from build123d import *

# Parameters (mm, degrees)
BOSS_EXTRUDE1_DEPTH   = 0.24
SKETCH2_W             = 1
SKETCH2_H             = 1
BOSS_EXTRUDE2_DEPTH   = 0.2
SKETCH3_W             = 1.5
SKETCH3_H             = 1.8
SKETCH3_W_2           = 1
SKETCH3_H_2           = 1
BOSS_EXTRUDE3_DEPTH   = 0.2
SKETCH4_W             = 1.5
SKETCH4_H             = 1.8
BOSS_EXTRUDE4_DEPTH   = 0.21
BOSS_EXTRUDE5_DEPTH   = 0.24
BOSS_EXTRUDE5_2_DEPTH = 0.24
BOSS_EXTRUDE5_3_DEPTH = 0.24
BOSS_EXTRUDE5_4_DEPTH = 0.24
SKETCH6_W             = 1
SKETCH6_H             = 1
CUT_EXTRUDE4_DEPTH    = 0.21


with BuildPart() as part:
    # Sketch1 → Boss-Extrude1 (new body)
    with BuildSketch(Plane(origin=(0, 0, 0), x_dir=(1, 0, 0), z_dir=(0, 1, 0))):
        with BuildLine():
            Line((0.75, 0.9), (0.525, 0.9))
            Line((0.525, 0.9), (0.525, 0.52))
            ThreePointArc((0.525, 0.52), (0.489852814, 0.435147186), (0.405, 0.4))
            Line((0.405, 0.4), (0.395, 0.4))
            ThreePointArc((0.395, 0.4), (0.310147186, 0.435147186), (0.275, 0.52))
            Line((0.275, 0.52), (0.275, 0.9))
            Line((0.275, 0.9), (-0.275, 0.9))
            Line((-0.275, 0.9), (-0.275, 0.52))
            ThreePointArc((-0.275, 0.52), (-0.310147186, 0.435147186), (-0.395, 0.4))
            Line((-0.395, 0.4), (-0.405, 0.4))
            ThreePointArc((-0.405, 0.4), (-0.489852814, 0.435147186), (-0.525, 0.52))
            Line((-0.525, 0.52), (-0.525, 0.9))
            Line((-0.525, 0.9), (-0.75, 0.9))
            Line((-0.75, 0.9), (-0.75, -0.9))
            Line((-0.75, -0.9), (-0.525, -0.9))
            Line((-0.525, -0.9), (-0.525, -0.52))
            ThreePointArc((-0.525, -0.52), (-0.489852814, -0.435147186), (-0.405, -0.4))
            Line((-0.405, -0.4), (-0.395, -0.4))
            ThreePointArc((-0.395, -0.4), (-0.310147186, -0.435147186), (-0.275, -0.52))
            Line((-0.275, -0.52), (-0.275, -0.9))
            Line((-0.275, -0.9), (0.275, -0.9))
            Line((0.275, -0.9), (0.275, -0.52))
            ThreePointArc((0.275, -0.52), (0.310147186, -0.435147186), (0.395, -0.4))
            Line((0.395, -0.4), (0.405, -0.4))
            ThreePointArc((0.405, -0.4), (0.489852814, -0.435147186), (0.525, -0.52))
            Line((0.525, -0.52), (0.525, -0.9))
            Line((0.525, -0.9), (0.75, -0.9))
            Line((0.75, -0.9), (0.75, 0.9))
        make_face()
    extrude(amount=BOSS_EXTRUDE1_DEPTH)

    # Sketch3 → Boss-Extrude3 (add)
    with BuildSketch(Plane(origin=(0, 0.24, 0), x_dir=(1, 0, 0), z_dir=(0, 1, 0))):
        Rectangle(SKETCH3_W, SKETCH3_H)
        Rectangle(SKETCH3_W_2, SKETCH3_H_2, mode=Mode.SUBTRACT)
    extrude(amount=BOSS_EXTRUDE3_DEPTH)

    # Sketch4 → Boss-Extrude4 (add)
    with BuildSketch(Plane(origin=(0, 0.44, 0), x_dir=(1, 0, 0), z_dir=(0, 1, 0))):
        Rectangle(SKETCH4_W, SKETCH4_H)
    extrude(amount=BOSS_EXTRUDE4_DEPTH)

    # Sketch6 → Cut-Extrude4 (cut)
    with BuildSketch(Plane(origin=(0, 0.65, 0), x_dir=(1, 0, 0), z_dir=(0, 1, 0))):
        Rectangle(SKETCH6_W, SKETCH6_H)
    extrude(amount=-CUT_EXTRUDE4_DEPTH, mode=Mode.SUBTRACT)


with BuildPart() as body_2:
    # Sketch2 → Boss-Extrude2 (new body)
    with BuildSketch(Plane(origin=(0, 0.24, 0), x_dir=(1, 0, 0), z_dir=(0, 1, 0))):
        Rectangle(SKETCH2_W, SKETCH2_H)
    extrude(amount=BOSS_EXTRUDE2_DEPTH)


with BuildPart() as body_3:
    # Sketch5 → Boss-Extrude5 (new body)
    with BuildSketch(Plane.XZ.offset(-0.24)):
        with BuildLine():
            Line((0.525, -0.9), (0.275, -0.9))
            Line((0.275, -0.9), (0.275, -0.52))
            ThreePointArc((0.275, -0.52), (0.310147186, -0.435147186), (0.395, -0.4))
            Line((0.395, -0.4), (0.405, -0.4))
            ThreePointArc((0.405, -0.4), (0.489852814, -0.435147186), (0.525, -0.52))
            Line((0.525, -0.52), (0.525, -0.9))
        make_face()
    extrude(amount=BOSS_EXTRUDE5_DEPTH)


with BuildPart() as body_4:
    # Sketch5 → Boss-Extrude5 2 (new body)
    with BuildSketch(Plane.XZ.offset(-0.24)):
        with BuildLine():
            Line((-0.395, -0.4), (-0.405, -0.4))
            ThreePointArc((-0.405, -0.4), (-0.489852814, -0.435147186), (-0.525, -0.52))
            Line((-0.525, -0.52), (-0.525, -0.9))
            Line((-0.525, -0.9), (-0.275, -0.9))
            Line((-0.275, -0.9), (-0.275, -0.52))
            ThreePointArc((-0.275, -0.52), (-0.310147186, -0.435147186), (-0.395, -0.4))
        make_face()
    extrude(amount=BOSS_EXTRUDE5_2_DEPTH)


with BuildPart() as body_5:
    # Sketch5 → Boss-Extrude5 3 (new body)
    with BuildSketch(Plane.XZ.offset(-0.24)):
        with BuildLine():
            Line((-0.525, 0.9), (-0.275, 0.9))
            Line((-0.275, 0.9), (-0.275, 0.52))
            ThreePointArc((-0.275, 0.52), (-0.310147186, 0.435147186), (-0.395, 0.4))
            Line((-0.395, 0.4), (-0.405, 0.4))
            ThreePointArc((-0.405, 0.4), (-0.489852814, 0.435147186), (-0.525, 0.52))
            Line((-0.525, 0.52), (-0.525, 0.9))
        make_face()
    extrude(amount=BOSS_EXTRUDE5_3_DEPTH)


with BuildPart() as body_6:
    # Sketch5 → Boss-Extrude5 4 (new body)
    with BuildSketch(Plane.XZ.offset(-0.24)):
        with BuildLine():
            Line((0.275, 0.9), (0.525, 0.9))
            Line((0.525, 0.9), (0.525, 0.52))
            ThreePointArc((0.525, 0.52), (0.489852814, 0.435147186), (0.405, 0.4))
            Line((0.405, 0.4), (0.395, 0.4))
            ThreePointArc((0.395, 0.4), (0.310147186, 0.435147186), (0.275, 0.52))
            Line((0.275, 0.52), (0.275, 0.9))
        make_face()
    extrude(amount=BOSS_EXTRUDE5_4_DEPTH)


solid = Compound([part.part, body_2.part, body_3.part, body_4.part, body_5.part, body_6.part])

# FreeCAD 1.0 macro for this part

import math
import FreeCAD as App
import Part
import Sketcher
Q = App.Units.Quantity

doc = App.newDocument("Part")
body = doc.addObject("PartDesign::Body", "Body")

# Sketch on XZ plane
sketch1 = body.newObject("Sketcher::SketchObject", "Sketch")
sketch1.AttachmentSupport = (doc.getObject("XZ_Plane"), [""])
sketch1.MapMode = "FlatFace"
sketch1.addGeometry([
    Part.LineSegment(App.Vector(0.75, -0.9, 0), App.Vector(0.525, -0.9, 0)),  # 0
    Part.LineSegment(App.Vector(0.525, -0.9, 0), App.Vector(0.525, -0.52, 0)),  # 1
    Part.ArcOfCircle(Part.Circle(App.Vector(0.405, -0.52, 0), App.Vector(0, 0, 1), 0.12), math.radians(0), math.radians(90)),  # 2
    Part.LineSegment(App.Vector(0.405, -0.4, 0), App.Vector(0.395, -0.4, 0)),  # 3
    Part.ArcOfCircle(Part.Circle(App.Vector(0.395, -0.52, 0), App.Vector(0, 0, 1), 0.12), math.radians(90), math.radians(180)),  # 4
    Part.LineSegment(App.Vector(0.275, -0.52, 0), App.Vector(0.275, -0.9, 0)),  # 5
    Part.LineSegment(App.Vector(0.275, -0.9, 0), App.Vector(-0.275, -0.9, 0)),  # 6
    Part.LineSegment(App.Vector(-0.275, -0.9, 0), App.Vector(-0.275, -0.52, 0)),  # 7
    Part.ArcOfCircle(Part.Circle(App.Vector(-0.395, -0.52, 0), App.Vector(0, 0, 1), 0.12), math.radians(0), math.radians(90)),  # 8
    Part.LineSegment(App.Vector(-0.395, -0.4, 0), App.Vector(-0.405, -0.4, 0)),  # 9
    Part.ArcOfCircle(Part.Circle(App.Vector(-0.405, -0.52, 0), App.Vector(0, 0, 1), 0.12), math.radians(90), math.radians(180)),  # 10
    Part.LineSegment(App.Vector(-0.525, -0.52, 0), App.Vector(-0.525, -0.9, 0)),  # 11
    Part.LineSegment(App.Vector(-0.525, -0.9, 0), App.Vector(-0.75, -0.9, 0)),  # 12
    Part.LineSegment(App.Vector(-0.75, -0.9, 0), App.Vector(-0.75, 0.9, 0)),  # 13
    Part.LineSegment(App.Vector(-0.75, 0.9, 0), App.Vector(-0.525, 0.9, 0)),  # 14
    Part.LineSegment(App.Vector(-0.525, 0.9, 0), App.Vector(-0.525, 0.52, 0)),  # 15
    Part.ArcOfCircle(Part.Circle(App.Vector(-0.405, 0.52, 0), App.Vector(0, 0, 1), 0.12), math.radians(180), math.radians(270)),  # 16
    Part.LineSegment(App.Vector(-0.405, 0.4, 0), App.Vector(-0.395, 0.4, 0)),  # 17
    Part.ArcOfCircle(Part.Circle(App.Vector(-0.395, 0.52, 0), App.Vector(0, 0, 1), 0.12), math.radians(-90), math.radians(0)),  # 18
    Part.LineSegment(App.Vector(-0.275, 0.52, 0), App.Vector(-0.275, 0.9, 0)),  # 19
    Part.LineSegment(App.Vector(-0.275, 0.9, 0), App.Vector(0.275, 0.9, 0)),  # 20
    Part.LineSegment(App.Vector(0.275, 0.9, 0), App.Vector(0.275, 0.52, 0)),  # 21
    Part.ArcOfCircle(Part.Circle(App.Vector(0.395, 0.52, 0), App.Vector(0, 0, 1), 0.12), math.radians(180), math.radians(270)),  # 22
    Part.LineSegment(App.Vector(0.395, 0.4, 0), App.Vector(0.405, 0.4, 0)),  # 23
    Part.ArcOfCircle(Part.Circle(App.Vector(0.405, 0.52, 0), App.Vector(0, 0, 1), 0.12), math.radians(-90), math.radians(0)),  # 24
    Part.LineSegment(App.Vector(0.525, 0.52, 0), App.Vector(0.525, 0.9, 0)),  # 25
    Part.LineSegment(App.Vector(0.525, 0.9, 0), App.Vector(0.75, 0.9, 0)),  # 26
    Part.LineSegment(App.Vector(0.75, 0.9, 0), App.Vector(0.75, -0.9, 0)),  # 27
], False)
sketch1.addConstraint([
    Sketcher.Constraint("Coincident", 0, 2, 1, 1),
    Sketcher.Constraint("Tangent", 1, 2, 2, 1),
    Sketcher.Constraint("Tangent", 2, 2, 3, 1),
    Sketcher.Constraint("Tangent", 3, 2, 4, 1),
    Sketcher.Constraint("Tangent", 4, 2, 5, 1),
    Sketcher.Constraint("Coincident", 5, 2, 6, 1),
    Sketcher.Constraint("Coincident", 6, 2, 7, 1),
    Sketcher.Constraint("Tangent", 7, 2, 8, 1),
    Sketcher.Constraint("Tangent", 8, 2, 9, 1),
    Sketcher.Constraint("Tangent", 9, 2, 10, 1),
    Sketcher.Constraint("Tangent", 10, 2, 11, 1),
    Sketcher.Constraint("Coincident", 11, 2, 12, 1),
    Sketcher.Constraint("Coincident", 12, 2, 13, 1),
    Sketcher.Constraint("Coincident", 13, 2, 14, 1),
    Sketcher.Constraint("Coincident", 14, 2, 15, 1),
    Sketcher.Constraint("Tangent", 15, 2, 16, 1),
    Sketcher.Constraint("Tangent", 16, 2, 17, 1),
    Sketcher.Constraint("Tangent", 17, 2, 18, 1),
    Sketcher.Constraint("Tangent", 18, 2, 19, 1),
    Sketcher.Constraint("Coincident", 19, 2, 20, 1),
    Sketcher.Constraint("Coincident", 20, 2, 21, 1),
    Sketcher.Constraint("Tangent", 21, 2, 22, 1),
    Sketcher.Constraint("Tangent", 22, 2, 23, 1),
    Sketcher.Constraint("Tangent", 23, 2, 24, 1),
    Sketcher.Constraint("Tangent", 24, 2, 25, 1),
    Sketcher.Constraint("Coincident", 25, 2, 26, 1),
    Sketcher.Constraint("Coincident", 26, 2, 27, 1),
    Sketcher.Constraint("Coincident", 27, 2, 0, 1),
    Sketcher.Constraint("Horizontal", 0),
    Sketcher.Constraint("Vertical", 1),
    Sketcher.Constraint("Horizontal", 3),
    Sketcher.Constraint("Vertical", 5),
    Sketcher.Constraint("Horizontal", 6),
    Sketcher.Constraint("Vertical", 7),
    Sketcher.Constraint("Horizontal", 9),
    Sketcher.Constraint("Vertical", 11),
    Sketcher.Constraint("Horizontal", 12),
    Sketcher.Constraint("Vertical", 13),
    Sketcher.Constraint("Horizontal", 14),
    Sketcher.Constraint("Vertical", 15),
    Sketcher.Constraint("Horizontal", 17),
    Sketcher.Constraint("Vertical", 19),
    Sketcher.Constraint("Horizontal", 20),
    Sketcher.Constraint("Vertical", 21),
    Sketcher.Constraint("Horizontal", 23),
    Sketcher.Constraint("Vertical", 25),
    Sketcher.Constraint("Horizontal", 26),
    Sketcher.Constraint("Vertical", 27),
    Sketcher.Constraint("Equal", 2, 4),
    Sketcher.Constraint("Equal", 4, 8),
    Sketcher.Constraint("Equal", 8, 10),
    Sketcher.Constraint("Equal", 10, 16),
    Sketcher.Constraint("Equal", 16, 18),
    Sketcher.Constraint("Equal", 18, 22),
    Sketcher.Constraint("Equal", 22, 24),
    Sketcher.Constraint("Symmetric", 2, 3, 16, 3, -1, 1),
    Sketcher.Constraint("Symmetric", 8, 3, 22, 3, -1, 1),
    Sketcher.Constraint("Symmetric", 5, 2, 19, 2, -1, 1),
    Sketcher.Constraint("Symmetric", 11, 2, 25, 2, -1, 1),
    Sketcher.Constraint("Symmetric", 13, 2, 27, 2, -1, 1),
    Sketcher.Constraint("Symmetric", 4, 3, 8, 3, -2),
    Sketcher.Constraint("Symmetric", 0, 2, 11, 2, -2),
    Sketcher.Constraint("Horizontal", 0, 2, 5, 2),
    Sketcher.Constraint("Radius", 2, Q("0.12 mm")),
    Sketcher.Constraint("DistanceY", 13, 1, 13, 2, Q("1.8 mm")),
    Sketcher.Constraint("DistanceX", 3, 2, 3, 1, Q("0.01 mm")),
    Sketcher.Constraint("DistanceX", 6, 2, 6, 1, Q("0.55 mm")),
    Sketcher.Constraint("DistanceY", 1, 1, 1, 2, Q("0.38 mm")),
    Sketcher.Constraint("DistanceX", 0, 2, 0, 1, Q("0.225 mm")),
])
pad1 = body.newObject("PartDesign::Pad", "Pad")
pad1.Profile = sketch1
pad1.Length = 0.24
pad1.Reversed = True

# Sketch on XZ plane
sketch2 = body.newObject("Sketcher::SketchObject", "Sketch001")
sketch2.AttachmentSupport = (doc.getObject("XZ_Plane"), [""])
sketch2.MapMode = "FlatFace"
sketch2.AttachmentOffset = App.Placement(App.Vector(0, 0, -0.24), App.Rotation())
sketch2.addGeometry([
    Part.LineSegment(App.Vector(-0.8, -0.9, 0), App.Vector(-0.8, 0.9, 0)),  # 0
    Part.LineSegment(App.Vector(-0.8, 0.9, 0), App.Vector(0.8, 0.9, 0)),  # 1
    Part.LineSegment(App.Vector(0.8, 0.9, 0), App.Vector(0.8, -0.9, 0)),  # 2
    Part.LineSegment(App.Vector(0.8, -0.9, 0), App.Vector(-0.8, -0.9, 0)),  # 3
    Part.LineSegment(App.Vector(0.5, 0.5, 0), App.Vector(-0.5, 0.5, 0)),  # 4
    Part.LineSegment(App.Vector(-0.5, 0.5, 0), App.Vector(-0.5, -0.5, 0)),  # 5
    Part.LineSegment(App.Vector(-0.5, -0.5, 0), App.Vector(0.5, -0.5, 0)),  # 6
    Part.LineSegment(App.Vector(0.5, -0.5, 0), App.Vector(0.5, 0.5, 0)),  # 7
], False)
sketch2.addConstraint([
    Sketcher.Constraint("Coincident", 0, 2, 1, 1),
    Sketcher.Constraint("Coincident", 1, 2, 2, 1),
    Sketcher.Constraint("Coincident", 2, 2, 3, 1),
    Sketcher.Constraint("Coincident", 3, 2, 0, 1),
    Sketcher.Constraint("Coincident", 4, 2, 5, 1),
    Sketcher.Constraint("Coincident", 5, 2, 6, 1),
    Sketcher.Constraint("Coincident", 6, 2, 7, 1),
    Sketcher.Constraint("Coincident", 7, 2, 4, 1),
    Sketcher.Constraint("Vertical", 0),
    Sketcher.Constraint("Horizontal", 1),
    Sketcher.Constraint("Vertical", 2),
    Sketcher.Constraint("Horizontal", 3),
    Sketcher.Constraint("Horizontal", 4),
    Sketcher.Constraint("Vertical", 5),
    Sketcher.Constraint("Horizontal", 6),
    Sketcher.Constraint("Vertical", 7),
    Sketcher.Constraint("Symmetric", 0, 2, 2, 2, -1, 1),
    Sketcher.Constraint("Symmetric", 4, 2, 6, 2, -1, 1),
    Sketcher.Constraint("Equal", 6, 5),
    Sketcher.Constraint("DistanceX", 4, 2, 4, 1, Q("1 mm")),
    Sketcher.Constraint("DistanceX", 1, 1, 1, 2, Q("1.5 mm")),
    Sketcher.Constraint("DistanceY", 0, 1, 0, 2, Q("1.8 mm")),
])
pad2 = body.newObject("PartDesign::Pad", "Pad001")
pad2.Profile = sketch2
pad2.Length = 0.2
pad2.Reversed = True

# Sketch on XZ plane
sketch3 = body.newObject("Sketcher::SketchObject", "Sketch002")
sketch3.AttachmentSupport = (doc.getObject("XZ_Plane"), [""])
sketch3.MapMode = "FlatFace"
sketch3.AttachmentOffset = App.Placement(App.Vector(0, 0, -0.44), App.Rotation())
sketch3.addGeometry([
    Part.LineSegment(App.Vector(-0.8, -0.9, 0), App.Vector(-0.8, 0.9, 0)),
    Part.LineSegment(App.Vector(-0.8, 0.9, 0), App.Vector(0.8, 0.9, 0)),
    Part.LineSegment(App.Vector(0.8, 0.9, 0), App.Vector(0.8, -0.9, 0)),
    Part.LineSegment(App.Vector(0.8, -0.9, 0), App.Vector(-0.8, -0.9, 0)),
], False)
sketch3.addConstraint([
    Sketcher.Constraint("Coincident", 0, 2, 1, 1),
    Sketcher.Constraint("Coincident", 1, 2, 2, 1),
    Sketcher.Constraint("Coincident", 2, 2, 3, 1),
    Sketcher.Constraint("Coincident", 3, 2, 0, 1),
    Sketcher.Constraint("Vertical", 0),
    Sketcher.Constraint("Horizontal", 1),
    Sketcher.Constraint("Vertical", 2),
    Sketcher.Constraint("Horizontal", 3),
    Sketcher.Constraint("Symmetric", 0, 2, 2, 2, -1, 1),
    Sketcher.Constraint("DistanceX", 1, 1, 1, 2, Q("1.5 mm")),
    Sketcher.Constraint("DistanceY", 0, 1, 0, 2, Q("1.8 mm")),
])
pad3 = body.newObject("PartDesign::Pad", "Pad002")
pad3.Profile = sketch3
pad3.Length = 0.21
pad3.Reversed = True

# Sketch on XZ plane
sketch4 = body.newObject("Sketcher::SketchObject", "Sketch003")
sketch4.AttachmentSupport = (doc.getObject("XZ_Plane"), [""])
sketch4.MapMode = "FlatFace"
sketch4.AttachmentOffset = App.Placement(App.Vector(0, 0, -0.65), App.Rotation())
sketch4.addGeometry([
    Part.LineSegment(App.Vector(-0.5, -0.5, 0), App.Vector(-0.5, 0.5, 0)),
    Part.LineSegment(App.Vector(-0.5, 0.5, 0), App.Vector(0.5, 0.5, 0)),
    Part.LineSegment(App.Vector(0.5, 0.5, 0), App.Vector(0.5, -0.5, 0)),
    Part.LineSegment(App.Vector(0.5, -0.5, 0), App.Vector(-0.5, -0.5, 0)),
], False)
sketch4.addConstraint([
    Sketcher.Constraint("Coincident", 0, 2, 1, 1),
    Sketcher.Constraint("Coincident", 1, 2, 2, 1),
    Sketcher.Constraint("Coincident", 2, 2, 3, 1),
    Sketcher.Constraint("Coincident", 3, 2, 0, 1),
    Sketcher.Constraint("Vertical", 0),
    Sketcher.Constraint("Horizontal", 1),
    Sketcher.Constraint("Vertical", 2),
    Sketcher.Constraint("Horizontal", 3),
    Sketcher.Constraint("Symmetric", 0, 2, 2, 2, -1, 1),
    Sketcher.Constraint("Equal", 3, 0),
    Sketcher.Constraint("DistanceX", 1, 1, 1, 2, Q("1 mm")),
])
pocket1 = body.newObject("PartDesign::Pocket", "Pocket")
pocket1.Profile = sketch4
pocket1.Length = 0.21
pocket1.Reversed = True
body2 = doc.addObject("PartDesign::Body", "Body001")

# Sketch on XZ plane
sketch5 = body2.newObject("Sketcher::SketchObject", "Sketch004")
sketch5.AttachmentSupport = (doc.getObject("XZ_Plane001"), [""])
sketch5.MapMode = "FlatFace"
sketch5.AttachmentOffset = App.Placement(App.Vector(0, 0, -0.24), App.Rotation())
sketch5.addGeometry([
    Part.LineSegment(App.Vector(-0.5, -0.5, 0), App.Vector(-0.5, 0.5, 0)),
    Part.LineSegment(App.Vector(-0.5, 0.5, 0), App.Vector(0.5, 0.5, 0)),
    Part.LineSegment(App.Vector(0.5, 0.5, 0), App.Vector(0.5, -0.5, 0)),
    Part.LineSegment(App.Vector(0.5, -0.5, 0), App.Vector(-0.5, -0.5, 0)),
], False)
sketch5.addConstraint([
    Sketcher.Constraint("Coincident", 0, 2, 1, 1),
    Sketcher.Constraint("Coincident", 1, 2, 2, 1),
    Sketcher.Constraint("Coincident", 2, 2, 3, 1),
    Sketcher.Constraint("Coincident", 3, 2, 0, 1),
    Sketcher.Constraint("Vertical", 0),
    Sketcher.Constraint("Horizontal", 1),
    Sketcher.Constraint("Vertical", 2),
    Sketcher.Constraint("Horizontal", 3),
    Sketcher.Constraint("Symmetric", 0, 2, 2, 2, -1, 1),
    Sketcher.Constraint("Equal", 3, 0),
    Sketcher.Constraint("DistanceX", 1, 1, 1, 2, Q("1 mm")),
])
pad4 = body2.newObject("PartDesign::Pad", "Pad003")
pad4.Profile = sketch5
pad4.Length = 0.2
pad4.Reversed = True
body3 = doc.addObject("PartDesign::Body", "Body002")

# Sketch on XZ plane
sketch6 = body3.newObject("Sketcher::SketchObject", "Sketch005")
sketch6.AttachmentSupport = (doc.getObject("XZ_Plane002"), [""])
sketch6.MapMode = "FlatFace"
sketch6.AttachmentOffset = App.Placement(App.Vector(0, 0, -0.24), App.Rotation())
sketch6.addGeometry([
    Part.LineSegment(App.Vector(0.275, -0.9, 0), App.Vector(0.525, -0.9, 0)),  # 0
    Part.LineSegment(App.Vector(0.525, -0.9, 0), App.Vector(0.525, -0.52, 0)),  # 1
    Part.ArcOfCircle(Part.Circle(App.Vector(0.405, -0.52, 0), App.Vector(0, 0, 1), 0.12), math.radians(0), math.radians(90)),  # 2
    Part.LineSegment(App.Vector(0.405, -0.4, 0), App.Vector(0.395, -0.4, 0)),  # 3
    Part.ArcOfCircle(Part.Circle(App.Vector(0.395, -0.52, 0), App.Vector(0, 0, 1), 0.12), math.radians(90), math.radians(180)),  # 4
    Part.LineSegment(App.Vector(0.275, -0.52, 0), App.Vector(0.275, -0.9, 0)),  # 5
], False)
sketch6.addConstraint([
    Sketcher.Constraint("Coincident", 0, 2, 1, 1),
    Sketcher.Constraint("Tangent", 1, 2, 2, 1),
    Sketcher.Constraint("Tangent", 2, 2, 3, 1),
    Sketcher.Constraint("Tangent", 3, 2, 4, 1),
    Sketcher.Constraint("Tangent", 4, 2, 5, 1),
    Sketcher.Constraint("Coincident", 5, 2, 0, 1),
    Sketcher.Constraint("Horizontal", 0),
    Sketcher.Constraint("Vertical", 1),
    Sketcher.Constraint("Horizontal", 3),
    Sketcher.Constraint("Vertical", 5),
    Sketcher.Constraint("Equal", 2, 4),
    Sketcher.Constraint("Radius", 2, Q("0.12 mm")),
    Sketcher.Constraint("DistanceX", 0, 1, 0, 2, Q("0.25 mm")),
    Sketcher.Constraint("DistanceY", 1, 1, 1, 2, Q("0.38 mm")),
    Sketcher.Constraint("DistanceY", 0, 2, -1, 1, Q("0.9 mm")),
    Sketcher.Constraint("DistanceX", -1, 1, 2, 3, Q("0.405 mm")),
])
pad5 = body3.newObject("PartDesign::Pad", "Pad004")
pad5.Profile = sketch6
pad5.Length = 0.24
body4 = doc.addObject("PartDesign::Body", "Body003")

# Sketch on XZ plane
sketch7 = body4.newObject("Sketcher::SketchObject", "Sketch006")
sketch7.AttachmentSupport = (doc.getObject("XZ_Plane003"), [""])
sketch7.MapMode = "FlatFace"
sketch7.AttachmentOffset = App.Placement(App.Vector(0, 0, -0.24), App.Rotation())
sketch7.addGeometry([
    Part.LineSegment(App.Vector(-0.395, -0.4, 0), App.Vector(-0.405, -0.4, 0)),  # 0
    Part.ArcOfCircle(Part.Circle(App.Vector(-0.405, -0.52, 0), App.Vector(0, 0, 1), 0.12), math.radians(90), math.radians(180)),  # 1
    Part.LineSegment(App.Vector(-0.525, -0.52, 0), App.Vector(-0.525, -0.9, 0)),  # 2
    Part.LineSegment(App.Vector(-0.525, -0.9, 0), App.Vector(-0.275, -0.9, 0)),  # 3
    Part.LineSegment(App.Vector(-0.275, -0.9, 0), App.Vector(-0.275, -0.52, 0)),  # 4
    Part.ArcOfCircle(Part.Circle(App.Vector(-0.395, -0.52, 0), App.Vector(0, 0, 1), 0.12), math.radians(0), math.radians(90)),  # 5
], False)
sketch7.addConstraint([
    Sketcher.Constraint("Tangent", 0, 2, 1, 1),
    Sketcher.Constraint("Tangent", 1, 2, 2, 1),
    Sketcher.Constraint("Coincident", 2, 2, 3, 1),
    Sketcher.Constraint("Coincident", 3, 2, 4, 1),
    Sketcher.Constraint("Tangent", 4, 2, 5, 1),
    Sketcher.Constraint("Tangent", 5, 2, 0, 1),
    Sketcher.Constraint("Horizontal", 0),
    Sketcher.Constraint("Vertical", 2),
    Sketcher.Constraint("Horizontal", 3),
    Sketcher.Constraint("Vertical", 4),
    Sketcher.Constraint("Equal", 1, 5),
    Sketcher.Constraint("Radius", 1, Q("0.12 mm")),
    Sketcher.Constraint("DistanceX", 0, 2, 0, 1, Q("0.01 mm")),
    Sketcher.Constraint("DistanceY", 2, 2, 2, 1, Q("0.38 mm")),
    Sketcher.Constraint("DistanceY", 0, 2, -1, 1, Q("0.4 mm")),
    Sketcher.Constraint("DistanceX", 1, 3, -1, 1, Q("0.405 mm")),
])
pad6 = body4.newObject("PartDesign::Pad", "Pad005")
pad6.Profile = sketch7
pad6.Length = 0.24
body5 = doc.addObject("PartDesign::Body", "Body004")

# Sketch on XZ plane
sketch8 = body5.newObject("Sketcher::SketchObject", "Sketch007")
sketch8.AttachmentSupport = (doc.getObject("XZ_Plane004"), [""])
sketch8.MapMode = "FlatFace"
sketch8.AttachmentOffset = App.Placement(App.Vector(0, 0, -0.24), App.Rotation())
sketch8.addGeometry([
    Part.LineSegment(App.Vector(-0.275, 0.9, 0), App.Vector(-0.525, 0.9, 0)),  # 0
    Part.LineSegment(App.Vector(-0.525, 0.9, 0), App.Vector(-0.525, 0.52, 0)),  # 1
    Part.ArcOfCircle(Part.Circle(App.Vector(-0.405, 0.52, 0), App.Vector(0, 0, 1), 0.12), math.radians(180), math.radians(270)),  # 2
    Part.LineSegment(App.Vector(-0.405, 0.4, 0), App.Vector(-0.395, 0.4, 0)),  # 3
    Part.ArcOfCircle(Part.Circle(App.Vector(-0.395, 0.52, 0), App.Vector(0, 0, 1), 0.12), math.radians(-90), math.radians(0)),  # 4
    Part.LineSegment(App.Vector(-0.275, 0.52, 0), App.Vector(-0.275, 0.9, 0)),  # 5
], False)
sketch8.addConstraint([
    Sketcher.Constraint("Coincident", 0, 2, 1, 1),
    Sketcher.Constraint("Tangent", 1, 2, 2, 1),
    Sketcher.Constraint("Tangent", 2, 2, 3, 1),
    Sketcher.Constraint("Tangent", 3, 2, 4, 1),
    Sketcher.Constraint("Tangent", 4, 2, 5, 1),
    Sketcher.Constraint("Coincident", 5, 2, 0, 1),
    Sketcher.Constraint("Horizontal", 0),
    Sketcher.Constraint("Vertical", 1),
    Sketcher.Constraint("Horizontal", 3),
    Sketcher.Constraint("Vertical", 5),
    Sketcher.Constraint("Equal", 2, 4),
    Sketcher.Constraint("Radius", 2, Q("0.12 mm")),
    Sketcher.Constraint("DistanceX", 0, 2, 0, 1, Q("0.25 mm")),
    Sketcher.Constraint("DistanceY", 1, 2, 1, 1, Q("0.38 mm")),
    Sketcher.Constraint("DistanceY", -1, 1, 0, 2, Q("0.9 mm")),
    Sketcher.Constraint("DistanceX", 2, 3, -1, 1, Q("0.405 mm")),
])
pad7 = body5.newObject("PartDesign::Pad", "Pad006")
pad7.Profile = sketch8
pad7.Length = 0.24
body6 = doc.addObject("PartDesign::Body", "Body005")

# Sketch on XZ plane
sketch9 = body6.newObject("Sketcher::SketchObject", "Sketch008")
sketch9.AttachmentSupport = (doc.getObject("XZ_Plane005"), [""])
sketch9.MapMode = "FlatFace"
sketch9.AttachmentOffset = App.Placement(App.Vector(0, 0, -0.24), App.Rotation())
sketch9.addGeometry([
    Part.LineSegment(App.Vector(0.525, 0.9, 0), App.Vector(0.275, 0.9, 0)),  # 0
    Part.LineSegment(App.Vector(0.275, 0.9, 0), App.Vector(0.275, 0.52, 0)),  # 1
    Part.ArcOfCircle(Part.Circle(App.Vector(0.395, 0.52, 0), App.Vector(0, 0, 1), 0.12), math.radians(180), math.radians(270)),  # 2
    Part.LineSegment(App.Vector(0.395, 0.4, 0), App.Vector(0.405, 0.4, 0)),  # 3
    Part.ArcOfCircle(Part.Circle(App.Vector(0.405, 0.52, 0), App.Vector(0, 0, 1), 0.12), math.radians(-90), math.radians(0)),  # 4
    Part.LineSegment(App.Vector(0.525, 0.52, 0), App.Vector(0.525, 0.9, 0)),  # 5
], False)
sketch9.addConstraint([
    Sketcher.Constraint("Coincident", 0, 2, 1, 1),
    Sketcher.Constraint("Tangent", 1, 2, 2, 1),
    Sketcher.Constraint("Tangent", 2, 2, 3, 1),
    Sketcher.Constraint("Tangent", 3, 2, 4, 1),
    Sketcher.Constraint("Tangent", 4, 2, 5, 1),
    Sketcher.Constraint("Coincident", 5, 2, 0, 1),
    Sketcher.Constraint("Horizontal", 0),
    Sketcher.Constraint("Vertical", 1),
    Sketcher.Constraint("Horizontal", 3),
    Sketcher.Constraint("Vertical", 5),
    Sketcher.Constraint("Equal", 2, 4),
    Sketcher.Constraint("Radius", 2, Q("0.12 mm")),
    Sketcher.Constraint("DistanceX", 0, 2, 0, 1, Q("0.25 mm")),
    Sketcher.Constraint("DistanceY", 1, 2, 1, 1, Q("0.38 mm")),
    Sketcher.Constraint("DistanceY", -1, 1, 0, 2, Q("0.9 mm")),
    Sketcher.Constraint("DistanceX", -1, 1, 2, 3, Q("0.395 mm")),
])
pad8 = body6.newObject("PartDesign::Pad", "Pad007")
pad8.Profile = sketch9
pad8.Length = 0.24

doc.recompute()
